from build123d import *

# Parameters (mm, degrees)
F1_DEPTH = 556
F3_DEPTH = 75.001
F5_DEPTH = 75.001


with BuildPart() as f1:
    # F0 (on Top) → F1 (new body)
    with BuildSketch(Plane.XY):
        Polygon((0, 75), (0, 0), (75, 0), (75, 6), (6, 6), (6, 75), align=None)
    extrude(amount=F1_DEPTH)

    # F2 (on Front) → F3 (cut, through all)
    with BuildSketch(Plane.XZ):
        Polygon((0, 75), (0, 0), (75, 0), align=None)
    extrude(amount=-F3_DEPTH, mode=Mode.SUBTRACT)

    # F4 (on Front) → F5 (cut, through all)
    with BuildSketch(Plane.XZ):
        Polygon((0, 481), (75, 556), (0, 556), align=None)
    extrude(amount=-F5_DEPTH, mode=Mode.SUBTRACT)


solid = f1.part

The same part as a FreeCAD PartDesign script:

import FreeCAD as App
import Part
import Sketcher
from FreeCAD import Vector


def add_polygon(sketch, points):
    """Adds a closed chain of lines whose ends are joined by coincident constraints."""
    first, n = sketch.GeometryCount, len(points)
    for a, b in zip(points, points[1:] + points[:1]):
        sketch.addGeometry(Part.LineSegment(App.Vector(*a, 0), App.Vector(*b, 0)), False)
    for i in range(n):
        sketch.addConstraint(Sketcher.Constraint("Coincident", first + i, 2, first + (i + 1) % n, 1))

doc = App.newDocument("Part")
body = doc.addObject("PartDesign::Body", "Body")

# Sketch on XY plane
sketch1 = body.newObject("Sketcher::SketchObject", "Sketch")
sketch1.AttachmentSupport = (doc.getObject("XY_Plane"), [""])
sketch1.MapMode = "FlatFace"
add_polygon(sketch1, [(0, 75), (0, 0), (75, 0), (75, 6), (6, 6), (6, 75)])  # lines 0-5
sketch1.addConstraint([
    Sketcher.Constraint("Vertical", 0),
    Sketcher.Constraint("Horizontal", 1),
    Sketcher.Constraint("Vertical", 2),
    Sketcher.Constraint("Horizontal", 3),
    Sketcher.Constraint("Vertical", 4),
    Sketcher.Constraint("Horizontal", 5),
    Sketcher.Constraint("Coincident", 0, 2, -1, 1),
    Sketcher.Constraint("Equal", 1, 0),
    Sketcher.Constraint("Equal", 5, 2),
    Sketcher.Constraint("DistanceX", 1, 1, 1, 2, 75.0),
    Sketcher.Constraint("DistanceX", 3, 2, 3, 1, 69.0),
])
pad1 = body.newObject("PartDesign::Pad", "Pad")
pad1.Profile = sketch1
pad1.Length = 556

# Sketch on XZ plane
sketch2 = body.newObject("Sketcher::SketchObject", "Sketch001")
sketch2.AttachmentSupport = (doc.getObject("XZ_Plane"), [""])
sketch2.MapMode = "FlatFace"
add_polygon(sketch2, [(0, 75), (0, 0), (75, 0)])  # lines 0-2
sketch2.addConstraint([
    Sketcher.Constraint("Vertical", 0),
    Sketcher.Constraint("Horizontal", 1),
    Sketcher.Constraint("Coincident", 0, 2, -1, 1),
    Sketcher.Constraint("Equal", 1, 0),
    Sketcher.Constraint("DistanceX", 1, 1, 1, 2, 75.0),
])
pocket1 = body.newObject("PartDesign::Pocket", "Pocket")
pocket1.Profile = sketch2
pocket1.Type = "ThroughAll"

# Sketch on XZ plane
sketch3 = body.newObject("Sketcher::SketchObject", "Sketch002")
sketch3.AttachmentSupport = (doc.getObject("XZ_Plane"), [""])
sketch3.MapMode = "FlatFace"
add_polygon(sketch3, [(0, 481), (75, 556), (0, 556)])  # lines 0-2
sketch3.addConstraint([
    Sketcher.Constraint("Horizontal", 1),
    Sketcher.Constraint("Vertical", 2),
    Sketcher.Constraint("PointOnObject", 1, 2, -2),
    Sketcher.Constraint("Equal", 1, 2),
    Sketcher.Constraint("DistanceX", 1, 2, 1, 1, 75.0),
    Sketcher.Constraint("DistanceY", -1, 1, 0, 2, 556.0),
])
pocket2 = body.newObject("PartDesign::Pocket", "Pocket001")
pocket2.Profile = sketch3
pocket2.Type = "ThroughAll"

doc.recompute()
